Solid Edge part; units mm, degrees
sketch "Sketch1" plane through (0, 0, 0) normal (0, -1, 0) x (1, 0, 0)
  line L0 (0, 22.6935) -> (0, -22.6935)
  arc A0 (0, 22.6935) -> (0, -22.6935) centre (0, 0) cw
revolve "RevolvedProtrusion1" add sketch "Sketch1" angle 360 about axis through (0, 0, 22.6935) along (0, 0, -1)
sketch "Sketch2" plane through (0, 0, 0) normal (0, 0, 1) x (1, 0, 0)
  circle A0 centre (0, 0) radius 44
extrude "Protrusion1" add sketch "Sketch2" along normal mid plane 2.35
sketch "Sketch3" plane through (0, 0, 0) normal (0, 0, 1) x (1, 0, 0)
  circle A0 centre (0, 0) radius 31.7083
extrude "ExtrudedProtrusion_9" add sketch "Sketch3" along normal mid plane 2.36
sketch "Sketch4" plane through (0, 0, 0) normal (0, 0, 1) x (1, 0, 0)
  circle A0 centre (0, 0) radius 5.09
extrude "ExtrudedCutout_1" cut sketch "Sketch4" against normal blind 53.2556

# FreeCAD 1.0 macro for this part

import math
import FreeCAD as App
import Part
import Sketcher

V = App.Vector
Q = App.Units.Quantity

doc = App.newDocument("Part")
params = doc.addObject("Spreadsheet::Sheet", "Params")
for row, (alias, value) in enumerate([
    ("revolution_angle", "360 deg"),
    ("sketch2_diameter", "88 mm"),
    ("pad1_length", "2.35 mm"),
    ("pad2_length", "2.36 mm"),
    ("sketch4_diameter", "10.18 mm"),
    ("pocket1_length", "53.2556 mm"),
], start=1):
    params.set(f"A{row}", alias)
    params.set(f"B{row}", "=" + value)
    params.setAlias(f"B{row}", alias)

body = doc.addObject("PartDesign::Body", "Body")

sketch1 = body.newObject("Sketcher::SketchObject", "Sketch")
sketch1.AttachmentSupport = (doc.getObject("XZ_Plane"), [""])
sketch1.MapMode = "FlatFace"
sketch1.addGeometry([
    Part.ArcOfCircle(Part.Circle(V(0, 0, 0), V(0, 0, 1), 23), math.radians(-90), math.radians(90)),
    Part.LineSegment(V(0, 23, 0), V(0, -23, 0)),
], False)
sketch1.addConstraint([
    Sketcher.Constraint("Coincident", 0, 1, 1, 2),
    Sketcher.Constraint("Coincident", 1, 1, 0, 2),
    Sketcher.Constraint("Vertical", 1),
    Sketcher.Constraint("Coincident", 0, 3, -1, 1),
    Sketcher.Constraint("PointOnObject", 0, 1, -2),
    Sketcher.Constraint("Radius", 0, Q("22.6935 mm")),
])
revolution = body.newObject("PartDesign::Revolution", "Revolution")
revolution.Profile = sketch1
revolution.ReferenceAxis = (sketch1, ["V_Axis"])
revolution.setExpression("Angle", "Params.revolution_angle")

sketch2 = body.newObject("Sketcher::SketchObject", "Sketch001")
sketch2.AttachmentSupport = (doc.getObject("XY_Plane"), [""])
sketch2.MapMode = "FlatFace"
sketch2.addGeometry(Part.Circle(V(0, 0, 0), V(0, 0, 1), 44), False)
sketch2.addConstraint([
    Sketcher.Constraint("Coincident", 0, 3, -1, 1),
    Sketcher.Constraint("Diameter", 0, Q("88 mm")),
])
sketch2.setExpression("Constraints[1]", "Params.sketch2_diameter")
pad1 = body.newObject("PartDesign::Pad", "Pad")
pad1.Profile = sketch2
pad1.setExpression("Length", "Params.pad1_length")
pad1.Midplane = True

sketch3 = body.newObject("Sketcher::SketchObject", "Sketch002")
sketch3.AttachmentSupport = (doc.getObject("XY_Plane"), [""])
sketch3.MapMode = "FlatFace"
sketch3.addGeometry(Part.Circle(V(0, 0, 0), V(0, 0, 1), 32), False)
sketch3.addConstraint([
    Sketcher.Constraint("Coincident", 0, 3, -1, 1),
    Sketcher.Constraint("Diameter", 0, Q("63.4166 mm")),
])
pad2 = body.newObject("PartDesign::Pad", "Pad001")
pad2.Profile = sketch3
pad2.setExpression("Length", "Params.pad2_length")
pad2.Midplane = True

sketch4 = body.newObject("Sketcher::SketchObject", "Sketch003")
sketch4.AttachmentSupport = (doc.getObject("XY_Plane"), [""])
sketch4.MapMode = "FlatFace"
sketch4.addGeometry(Part.Circle(V(0, 0, 0), V(0, 0, 1), 5), False)
sketch4.addConstraint([
    Sketcher.Constraint("Coincident", 0, 3, -1, 1),
    Sketcher.Constraint("Diameter", 0, Q("10.18 mm")),
])
sketch4.setExpression("Constraints[1]", "Params.sketch4_diameter")
pocket1 = body.newObject("PartDesign::Pocket", "Pocket")
pocket1.Profile = sketch4
pocket1.setExpression("Length", "Params.pocket1_length")

doc.recompute()
